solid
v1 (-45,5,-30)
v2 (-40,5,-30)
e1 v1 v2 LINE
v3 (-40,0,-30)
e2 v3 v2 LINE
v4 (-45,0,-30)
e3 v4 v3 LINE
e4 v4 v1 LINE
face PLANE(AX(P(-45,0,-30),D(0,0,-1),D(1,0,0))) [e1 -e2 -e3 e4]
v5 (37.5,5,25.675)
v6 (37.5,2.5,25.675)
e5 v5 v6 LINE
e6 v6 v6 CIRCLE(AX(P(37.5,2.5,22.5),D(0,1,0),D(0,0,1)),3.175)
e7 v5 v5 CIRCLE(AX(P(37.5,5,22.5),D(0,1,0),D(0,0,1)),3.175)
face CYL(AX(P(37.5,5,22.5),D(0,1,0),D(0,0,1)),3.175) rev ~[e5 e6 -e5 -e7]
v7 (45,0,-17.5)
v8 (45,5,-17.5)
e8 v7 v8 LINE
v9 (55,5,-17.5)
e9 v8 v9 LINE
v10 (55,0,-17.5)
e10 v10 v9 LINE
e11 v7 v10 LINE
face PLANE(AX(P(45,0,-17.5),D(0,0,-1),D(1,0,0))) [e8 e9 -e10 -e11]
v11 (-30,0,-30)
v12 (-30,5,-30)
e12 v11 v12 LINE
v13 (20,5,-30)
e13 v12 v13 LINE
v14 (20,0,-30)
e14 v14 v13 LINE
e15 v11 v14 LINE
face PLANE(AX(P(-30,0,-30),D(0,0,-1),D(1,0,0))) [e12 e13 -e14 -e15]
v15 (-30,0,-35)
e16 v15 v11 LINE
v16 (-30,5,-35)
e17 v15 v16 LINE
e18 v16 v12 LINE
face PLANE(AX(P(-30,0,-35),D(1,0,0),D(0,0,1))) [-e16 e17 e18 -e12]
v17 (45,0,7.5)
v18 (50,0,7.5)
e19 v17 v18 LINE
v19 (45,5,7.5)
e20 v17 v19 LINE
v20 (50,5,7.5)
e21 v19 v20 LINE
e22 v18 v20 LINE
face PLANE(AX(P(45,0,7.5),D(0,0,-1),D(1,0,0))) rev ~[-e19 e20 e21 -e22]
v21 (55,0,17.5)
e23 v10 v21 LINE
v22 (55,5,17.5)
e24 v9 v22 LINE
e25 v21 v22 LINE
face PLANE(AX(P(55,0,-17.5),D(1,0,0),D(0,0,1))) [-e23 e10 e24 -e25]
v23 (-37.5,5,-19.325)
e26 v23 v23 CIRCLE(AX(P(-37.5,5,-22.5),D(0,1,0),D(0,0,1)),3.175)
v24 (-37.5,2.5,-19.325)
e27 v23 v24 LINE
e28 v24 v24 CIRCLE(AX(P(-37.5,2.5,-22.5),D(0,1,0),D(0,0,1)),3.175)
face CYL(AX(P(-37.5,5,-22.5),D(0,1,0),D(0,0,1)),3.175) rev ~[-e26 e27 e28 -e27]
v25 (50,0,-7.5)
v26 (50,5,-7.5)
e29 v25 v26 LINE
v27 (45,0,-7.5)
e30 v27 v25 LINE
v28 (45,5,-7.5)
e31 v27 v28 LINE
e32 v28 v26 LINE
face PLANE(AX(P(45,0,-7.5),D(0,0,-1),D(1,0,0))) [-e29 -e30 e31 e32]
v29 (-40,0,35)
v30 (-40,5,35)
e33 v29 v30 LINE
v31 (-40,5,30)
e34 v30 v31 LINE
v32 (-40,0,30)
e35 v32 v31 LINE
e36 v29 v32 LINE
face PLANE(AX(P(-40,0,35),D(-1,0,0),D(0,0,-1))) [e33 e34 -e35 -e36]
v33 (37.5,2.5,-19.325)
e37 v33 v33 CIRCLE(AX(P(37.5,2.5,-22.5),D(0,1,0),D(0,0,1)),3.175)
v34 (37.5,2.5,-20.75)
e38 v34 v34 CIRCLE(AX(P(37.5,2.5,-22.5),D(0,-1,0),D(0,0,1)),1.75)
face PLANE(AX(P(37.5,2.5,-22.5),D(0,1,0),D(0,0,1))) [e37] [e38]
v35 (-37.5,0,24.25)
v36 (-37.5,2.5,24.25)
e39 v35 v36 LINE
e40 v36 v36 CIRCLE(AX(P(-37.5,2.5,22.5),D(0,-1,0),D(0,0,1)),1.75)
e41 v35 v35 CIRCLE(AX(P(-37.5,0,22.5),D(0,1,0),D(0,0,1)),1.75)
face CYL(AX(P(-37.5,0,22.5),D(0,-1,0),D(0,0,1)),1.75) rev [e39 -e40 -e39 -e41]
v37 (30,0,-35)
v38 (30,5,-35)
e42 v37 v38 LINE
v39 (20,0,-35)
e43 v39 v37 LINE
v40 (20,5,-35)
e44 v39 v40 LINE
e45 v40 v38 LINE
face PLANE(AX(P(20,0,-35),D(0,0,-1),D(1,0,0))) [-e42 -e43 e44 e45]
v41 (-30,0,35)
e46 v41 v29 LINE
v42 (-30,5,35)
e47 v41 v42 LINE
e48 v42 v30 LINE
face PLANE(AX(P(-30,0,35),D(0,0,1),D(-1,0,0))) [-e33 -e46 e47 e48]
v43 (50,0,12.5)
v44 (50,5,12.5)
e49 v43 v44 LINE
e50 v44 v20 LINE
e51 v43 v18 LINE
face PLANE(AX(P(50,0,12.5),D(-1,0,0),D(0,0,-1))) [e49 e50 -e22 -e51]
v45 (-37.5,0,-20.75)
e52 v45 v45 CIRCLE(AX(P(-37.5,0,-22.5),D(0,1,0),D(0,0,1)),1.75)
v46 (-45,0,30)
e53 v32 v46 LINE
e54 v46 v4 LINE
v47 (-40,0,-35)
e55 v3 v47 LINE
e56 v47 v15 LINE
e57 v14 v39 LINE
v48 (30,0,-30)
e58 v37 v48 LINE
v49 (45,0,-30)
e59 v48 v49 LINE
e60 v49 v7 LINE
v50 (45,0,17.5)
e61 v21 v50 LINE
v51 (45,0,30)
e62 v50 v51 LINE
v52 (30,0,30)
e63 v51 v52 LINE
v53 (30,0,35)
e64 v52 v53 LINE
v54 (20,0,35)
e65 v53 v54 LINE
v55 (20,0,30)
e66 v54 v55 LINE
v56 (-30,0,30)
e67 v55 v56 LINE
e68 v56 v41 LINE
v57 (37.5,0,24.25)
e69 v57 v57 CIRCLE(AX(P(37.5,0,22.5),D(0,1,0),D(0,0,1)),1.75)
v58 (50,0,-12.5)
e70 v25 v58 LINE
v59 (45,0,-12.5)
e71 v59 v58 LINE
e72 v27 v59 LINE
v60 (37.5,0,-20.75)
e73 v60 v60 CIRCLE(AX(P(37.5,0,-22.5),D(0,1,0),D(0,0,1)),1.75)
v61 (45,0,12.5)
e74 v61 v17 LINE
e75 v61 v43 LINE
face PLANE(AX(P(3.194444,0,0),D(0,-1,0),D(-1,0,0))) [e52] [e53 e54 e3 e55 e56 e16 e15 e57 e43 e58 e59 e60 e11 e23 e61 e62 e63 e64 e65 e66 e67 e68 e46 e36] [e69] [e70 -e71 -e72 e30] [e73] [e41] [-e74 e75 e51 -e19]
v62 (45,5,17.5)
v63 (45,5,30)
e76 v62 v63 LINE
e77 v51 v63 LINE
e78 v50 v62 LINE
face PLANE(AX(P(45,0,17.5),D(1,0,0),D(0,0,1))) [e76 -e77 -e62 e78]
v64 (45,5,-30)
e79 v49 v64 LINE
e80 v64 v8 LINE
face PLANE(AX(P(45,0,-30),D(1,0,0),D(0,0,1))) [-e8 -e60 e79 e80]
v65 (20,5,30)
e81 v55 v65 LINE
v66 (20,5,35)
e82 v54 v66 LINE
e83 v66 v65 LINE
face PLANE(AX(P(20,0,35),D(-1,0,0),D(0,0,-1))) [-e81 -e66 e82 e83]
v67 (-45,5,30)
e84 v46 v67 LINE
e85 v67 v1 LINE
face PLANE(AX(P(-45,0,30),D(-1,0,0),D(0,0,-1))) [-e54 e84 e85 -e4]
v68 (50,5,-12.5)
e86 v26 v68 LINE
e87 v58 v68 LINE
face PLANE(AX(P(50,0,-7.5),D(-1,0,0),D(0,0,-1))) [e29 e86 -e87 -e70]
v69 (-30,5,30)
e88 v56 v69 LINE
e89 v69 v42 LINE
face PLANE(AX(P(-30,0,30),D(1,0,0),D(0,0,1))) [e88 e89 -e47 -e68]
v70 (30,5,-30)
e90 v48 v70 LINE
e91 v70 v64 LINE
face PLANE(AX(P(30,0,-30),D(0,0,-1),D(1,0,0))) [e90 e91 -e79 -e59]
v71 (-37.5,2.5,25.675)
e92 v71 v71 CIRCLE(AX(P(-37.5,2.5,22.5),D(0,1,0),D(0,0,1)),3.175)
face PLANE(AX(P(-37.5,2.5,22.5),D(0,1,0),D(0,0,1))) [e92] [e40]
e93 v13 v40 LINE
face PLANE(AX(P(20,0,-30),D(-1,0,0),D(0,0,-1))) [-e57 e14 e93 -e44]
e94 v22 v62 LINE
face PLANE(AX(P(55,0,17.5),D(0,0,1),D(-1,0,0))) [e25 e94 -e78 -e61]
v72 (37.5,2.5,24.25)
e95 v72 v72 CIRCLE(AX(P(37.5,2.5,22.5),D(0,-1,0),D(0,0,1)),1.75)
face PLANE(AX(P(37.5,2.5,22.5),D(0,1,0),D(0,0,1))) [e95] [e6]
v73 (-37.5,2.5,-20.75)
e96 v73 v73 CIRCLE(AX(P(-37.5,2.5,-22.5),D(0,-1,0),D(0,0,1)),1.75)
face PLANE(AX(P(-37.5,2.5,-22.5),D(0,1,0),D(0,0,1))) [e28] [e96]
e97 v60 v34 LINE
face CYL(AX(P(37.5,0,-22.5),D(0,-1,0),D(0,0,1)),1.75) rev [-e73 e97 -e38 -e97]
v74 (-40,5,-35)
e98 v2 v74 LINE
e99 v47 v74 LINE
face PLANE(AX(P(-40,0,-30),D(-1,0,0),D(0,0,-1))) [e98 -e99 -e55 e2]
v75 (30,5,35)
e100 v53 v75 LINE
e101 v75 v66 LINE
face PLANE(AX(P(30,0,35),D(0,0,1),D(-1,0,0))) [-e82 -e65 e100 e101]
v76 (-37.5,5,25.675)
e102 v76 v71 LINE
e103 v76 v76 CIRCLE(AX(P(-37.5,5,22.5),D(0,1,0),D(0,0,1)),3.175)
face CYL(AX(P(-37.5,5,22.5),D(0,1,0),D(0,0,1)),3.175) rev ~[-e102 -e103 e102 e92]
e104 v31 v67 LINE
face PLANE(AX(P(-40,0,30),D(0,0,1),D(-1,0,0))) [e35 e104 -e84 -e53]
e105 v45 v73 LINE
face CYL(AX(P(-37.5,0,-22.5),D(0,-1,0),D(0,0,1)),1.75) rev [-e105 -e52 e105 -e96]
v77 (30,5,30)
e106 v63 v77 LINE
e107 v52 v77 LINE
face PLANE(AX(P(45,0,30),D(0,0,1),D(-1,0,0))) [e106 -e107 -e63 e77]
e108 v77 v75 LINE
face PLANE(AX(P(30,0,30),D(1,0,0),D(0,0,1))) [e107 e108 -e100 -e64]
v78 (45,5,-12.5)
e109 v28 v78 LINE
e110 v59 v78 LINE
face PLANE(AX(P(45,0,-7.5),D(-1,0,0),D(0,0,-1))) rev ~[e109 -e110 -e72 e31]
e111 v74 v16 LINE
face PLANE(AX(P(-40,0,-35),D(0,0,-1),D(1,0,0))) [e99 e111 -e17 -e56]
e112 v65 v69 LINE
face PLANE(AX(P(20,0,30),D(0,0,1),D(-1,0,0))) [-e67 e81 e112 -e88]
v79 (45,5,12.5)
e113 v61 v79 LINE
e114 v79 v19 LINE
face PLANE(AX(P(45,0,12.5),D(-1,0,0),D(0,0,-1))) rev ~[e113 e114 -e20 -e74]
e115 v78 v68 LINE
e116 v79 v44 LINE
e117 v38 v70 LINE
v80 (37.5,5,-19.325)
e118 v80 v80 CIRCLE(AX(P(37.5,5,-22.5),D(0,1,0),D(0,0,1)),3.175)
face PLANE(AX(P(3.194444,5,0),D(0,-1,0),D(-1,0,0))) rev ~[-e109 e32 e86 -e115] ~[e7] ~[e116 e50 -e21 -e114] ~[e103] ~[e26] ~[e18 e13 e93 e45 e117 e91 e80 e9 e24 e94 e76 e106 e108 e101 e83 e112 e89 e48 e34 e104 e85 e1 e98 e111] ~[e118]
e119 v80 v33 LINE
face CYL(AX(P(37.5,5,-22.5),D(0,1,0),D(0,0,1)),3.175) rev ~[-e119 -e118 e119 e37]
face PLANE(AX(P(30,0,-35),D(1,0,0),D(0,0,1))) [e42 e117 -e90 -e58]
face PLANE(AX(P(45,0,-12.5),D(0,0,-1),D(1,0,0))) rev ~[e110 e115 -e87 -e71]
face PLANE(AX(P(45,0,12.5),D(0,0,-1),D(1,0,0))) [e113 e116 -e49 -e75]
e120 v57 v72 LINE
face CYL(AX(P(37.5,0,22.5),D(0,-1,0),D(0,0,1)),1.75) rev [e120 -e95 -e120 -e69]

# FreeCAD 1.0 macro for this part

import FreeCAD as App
import Part
import Sketcher

V = App.Vector

doc = App.newDocument("Part")
body = doc.addObject("PartDesign::Body", "Body")

sketch1 = body.newObject("Sketcher::SketchObject", "Sketch")
sketch1.AttachmentSupport = (doc.getObject("XZ_Plane"), [""])
sketch1.MapMode = "FlatFace"
sketch1.addGeometry([
    Part.LineSegment(V(45, -30, 0), V(30, -30, 0)),
    Part.LineSegment(V(30, -30, 0), V(30, -35, 0)),
    Part.LineSegment(V(30, -35, 0), V(20, -35, 0)),
    Part.LineSegment(V(20, -35, 0), V(20, -30, 0)),
    Part.LineSegment(V(20, -30, 0), V(-30, -30, 0)),
    Part.LineSegment(V(-30, -30, 0), V(-30, -35, 0)),
    Part.LineSegment(V(-30, -35, 0), V(-40, -35, 0)),
    Part.LineSegment(V(-40, -35, 0), V(-40, -30, 0)),
    Part.LineSegment(V(-40, -30, 0), V(-45, -30, 0)),
    Part.LineSegment(V(-45, -30, 0), V(-45, 30, 0)),
    Part.LineSegment(V(-45, 30, 0), V(-40, 30, 0)),
    Part.LineSegment(V(-40, 30, 0), V(-40, 35, 0)),
    Part.LineSegment(V(-40, 35, 0), V(-30, 35, 0)),
    Part.LineSegment(V(-30, 35, 0), V(-30, 30, 0)),
    Part.LineSegment(V(-30, 30, 0), V(20, 30, 0)),
    Part.LineSegment(V(20, 30, 0), V(20, 35, 0)),
    Part.LineSegment(V(20, 35, 0), V(30, 35, 0)),
    Part.LineSegment(V(30, 35, 0), V(30, 30, 0)),
    Part.LineSegment(V(30, 30, 0), V(45, 30, 0)),
    Part.LineSegment(V(45, 30, 0), V(45, 17.5, 0)),
    Part.LineSegment(V(45, 17.5, 0), V(55, 17.5, 0)),
    Part.LineSegment(V(55, 17.5, 0), V(55, -17.5, 0)),
    Part.LineSegment(V(55, -17.5, 0), V(45, -17.5, 0)),
    Part.LineSegment(V(45, -17.5, 0), V(45, -30, 0)),
    Part.Circle(V(37.5, 22.5, 0), V(0, 0, 1), 1.8),
    Part.LineSegment(V(45, 12.5, 0), V(45, 7.5, 0)),
    Part.LineSegment(V(45, 7.5, 0), V(50, 7.5, 0)),
    Part.LineSegment(V(50, 7.5, 0), V(50, 12.5, 0)),
    Part.LineSegment(V(50, 12.5, 0), V(45, 12.5, 0)),
    Part.Circle(V(-37.5, 22.5, 0), V(0, 0, 1), 1.8),
    Part.LineSegment(V(45, -7.5, 0), V(45, -12.5, 0)),
    Part.LineSegment(V(45, -12.5, 0), V(50, -12.5, 0)),
    Part.LineSegment(V(50, -12.5, 0), V(50, -7.5, 0)),
    Part.LineSegment(V(50, -7.5, 0), V(45, -7.5, 0)),
    Part.Circle(V(37.5, -22.5, 0), V(0, 0, 1), 1.8),
    Part.Circle(V(-37.5, -22.5, 0), V(0, 0, 1), 1.8),
], False)
sketch1.addConstraint([
    Sketcher.Constraint("Coincident", 0, 2, 1, 1),
    Sketcher.Constraint("Coincident", 1, 2, 2, 1),
    Sketcher.Constraint("Coincident", 2, 2, 3, 1),
    Sketcher.Constraint("Coincident", 3, 2, 4, 1),
    Sketcher.Constraint("Coincident", 4, 2, 5, 1),
    Sketcher.Constraint("Coincident", 5, 2, 6, 1),
    Sketcher.Constraint("Coincident", 6, 2, 7, 1),
    Sketcher.Constraint("Coincident", 7, 2, 8, 1),
    Sketcher.Constraint("Coincident", 8, 2, 9, 1),
    Sketcher.Constraint("Coincident", 9, 2, 10, 1),
    Sketcher.Constraint("Coincident", 10, 2, 11, 1),
    Sketcher.Constraint("Coincident", 11, 2, 12, 1),
    Sketcher.Constraint("Coincident", 12, 2, 13, 1),
    Sketcher.Constraint("Coincident", 13, 2, 14, 1),
    Sketcher.Constraint("Coincident", 14, 2, 15, 1),
    Sketcher.Constraint("Coincident", 15, 2, 16, 1),
    Sketcher.Constraint("Coincident", 16, 2, 17, 1),
    Sketcher.Constraint("Coincident", 17, 2, 18, 1),
    Sketcher.Constraint("Coincident", 18, 2, 19, 1),
    Sketcher.Constraint("Coincident", 19, 2, 20, 1),
    Sketcher.Constraint("Coincident", 20, 2, 21, 1),
    Sketcher.Constraint("Coincident", 21, 2, 22, 1),
    Sketcher.Constraint("Coincident", 22, 2, 23, 1),
    Sketcher.Constraint("Coincident", 23, 2, 0, 1),
    Sketcher.Constraint("Coincident", 25, 2, 26, 1),
    Sketcher.Constraint("Coincident", 26, 2, 27, 1),
    Sketcher.Constraint("Coincident", 27, 2, 28, 1),
    Sketcher.Constraint("Coincident", 28, 2, 25, 1),
    Sketcher.Constraint("Coincident", 30, 2, 31, 1),
    Sketcher.Constraint("Coincident", 31, 2, 32, 1),
    Sketcher.Constraint("Coincident", 32, 2, 33, 1),
    Sketcher.Constraint("Coincident", 33, 2, 30, 1),
    Sketcher.Constraint("Horizontal", 0),
    Sketcher.Constraint("Vertical", 1),
    Sketcher.Constraint("Horizontal", 2),
    Sketcher.Constraint("Vertical", 3),
    Sketcher.Constraint("Horizontal", 4),
    Sketcher.Constraint("Vertical", 5),
    Sketcher.Constraint("Horizontal", 6),
    Sketcher.Constraint("Vertical", 7),
    Sketcher.Constraint("Horizontal", 8),
    Sketcher.Constraint("Vertical", 9),
    Sketcher.Constraint("Horizontal", 10),
    Sketcher.Constraint("Vertical", 11),
    Sketcher.Constraint("Horizontal", 12),
    Sketcher.Constraint("Vertical", 13),
    Sketcher.Constraint("Horizontal", 14),
    Sketcher.Constraint("Vertical", 15),
    Sketcher.Constraint("Horizontal", 16),
    Sketcher.Constraint("Vertical", 17),
    Sketcher.Constraint("Horizontal", 18),
    Sketcher.Constraint("Vertical", 19),
    Sketcher.Constraint("Horizontal", 20),
    Sketcher.Constraint("Vertical", 21),
    Sketcher.Constraint("Horizontal", 22),
    Sketcher.Constraint("Vertical", 23),
    Sketcher.Constraint("Vertical", 25),
    Sketcher.Constraint("Horizontal", 26),
    Sketcher.Constraint("Vertical", 27),
    Sketcher.Constraint("Horizontal", 28),
    Sketcher.Constraint("Vertical", 30),
    Sketcher.Constraint("Horizontal", 31),
    Sketcher.Constraint("Vertical", 32),
    Sketcher.Constraint("Horizontal", 33),
    Sketcher.Constraint("Equal", 24, 29),
    Sketcher.Constraint("Equal", 29, 34),
    Sketcher.Constraint("Equal", 34, 35),
    Sketcher.Constraint("Symmetric", 29, 3, 34, 3, -1, 1),
    Sketcher.Constraint("Symmetric", 24, 3, 35, 3, -1, 1),
    Sketcher.Constraint("Symmetric", 1, 2, 12, 2, -1, 1),
    Sketcher.Constraint("Symmetric", 5, 2, 16, 2, -1, 1),
    Sketcher.Constraint("Symmetric", 8, 2, 18, 2, -1, 1),
    Sketcher.Constraint("Symmetric", 9, 2, 23, 2, -1, 1),
    Sketcher.Constraint("Symmetric", 24, 3, 29, 3, -2),
    Sketcher.Constraint("Symmetric", 0, 2, 4, 2, -2),
    Sketcher.Constraint("Symmetric", 7, 2, 10, 2, -1),
    Sketcher.Constraint("Symmetric", 3, 2, 14, 2, -1),
    Sketcher.Constraint("Symmetric", 28, 2, 30, 2, -1),
    Sketcher.Constraint("Symmetric", 26, 2, 32, 2, -1),
    Sketcher.Constraint("Horizontal", 2, 2, 5, 2),
    Sketcher.Constraint("Vertical", 23, 2, 25, 2),
    Sketcher.Constraint("Equal", 2, 6),
    Sketcher.Constraint("Equal", 16, 20),
    Sketcher.Constraint("Equal", 10, 26),
    Sketcher.Constraint("Equal", 33, 1),
    Sketcher.Constraint("Equal", 19, 23),
    Sketcher.Constraint("Equal", 17, 25),
    Sketcher.Constraint("Diameter", 24, 3.5),
    Sketcher.Constraint("DistanceX", 0, 2, 0, 1, 15.0),
    Sketcher.Constraint("DistanceX", 2, 2, 2, 1, 10.0),
    Sketcher.Constraint("DistanceX", 4, 2, 4, 1, 50.0),
    Sketcher.Constraint("DistanceY", 9, 1, 9, 2, 60.0),
    Sketcher.Constraint("DistanceY", 21, 2, 21, 1, 35.0),
    Sketcher.Constraint("DistanceX", 29, 3, 24, 3, 75.0),
    Sketcher.Constraint("DistanceY", 34, 3, 24, 3, 45.0),
    Sketcher.Constraint("DistanceY", 25, 2, 19, 2, 10.0),
])
pad1 = body.newObject("PartDesign::Pad", "Pad")
pad1.Profile = sketch1
pad1.Length = 5
pad1.Reversed = True

sketch2 = body.newObject("Sketcher::SketchObject", "Sketch001")
sketch2.AttachmentSupport = (doc.getObject("XZ_Plane"), [""])
sketch2.MapMode = "FlatFace"
sketch2.AttachmentOffset = App.Placement(V(0, 0, -5), App.Rotation())
sketch2.addGeometry([
    Part.Circle(V(-37.5, -22.5, 0), V(0, 0, 1), 3.2),
    Part.Circle(V(-37.5, 22.5, 0), V(0, 0, 1), 3.2),
    Part.Circle(V(37.5, -22.5, 0), V(0, 0, 1), 3.2),
    Part.Circle(V(37.5, 22.5, 0), V(0, 0, 1), 3.2),
], False)
sketch2.addConstraint([
    Sketcher.Constraint("Equal", 0, 1),
    Sketcher.Constraint("Equal", 1, 2),
    Sketcher.Constraint("Equal", 2, 3),
    Sketcher.Constraint("Symmetric", 1, 3, 2, 3, -1, 1),
    Sketcher.Constraint("Symmetric", 0, 3, 3, 3, -1, 1),
    Sketcher.Constraint("Symmetric", 0, 3, 2, 3, -2),
    Sketcher.Constraint("Diameter", 0, 6.35),
    Sketcher.Constraint("DistanceY", 0, 3, 1, 3, 45.0),
    Sketcher.Constraint("DistanceX", 0, 3, 2, 3, 75.0),
])
pocket1 = body.newObject("PartDesign::Pocket", "Pocket")
pocket1.Profile = sketch2
pocket1.Length = 2.5
pocket1.Reversed = True

doc.recompute()
